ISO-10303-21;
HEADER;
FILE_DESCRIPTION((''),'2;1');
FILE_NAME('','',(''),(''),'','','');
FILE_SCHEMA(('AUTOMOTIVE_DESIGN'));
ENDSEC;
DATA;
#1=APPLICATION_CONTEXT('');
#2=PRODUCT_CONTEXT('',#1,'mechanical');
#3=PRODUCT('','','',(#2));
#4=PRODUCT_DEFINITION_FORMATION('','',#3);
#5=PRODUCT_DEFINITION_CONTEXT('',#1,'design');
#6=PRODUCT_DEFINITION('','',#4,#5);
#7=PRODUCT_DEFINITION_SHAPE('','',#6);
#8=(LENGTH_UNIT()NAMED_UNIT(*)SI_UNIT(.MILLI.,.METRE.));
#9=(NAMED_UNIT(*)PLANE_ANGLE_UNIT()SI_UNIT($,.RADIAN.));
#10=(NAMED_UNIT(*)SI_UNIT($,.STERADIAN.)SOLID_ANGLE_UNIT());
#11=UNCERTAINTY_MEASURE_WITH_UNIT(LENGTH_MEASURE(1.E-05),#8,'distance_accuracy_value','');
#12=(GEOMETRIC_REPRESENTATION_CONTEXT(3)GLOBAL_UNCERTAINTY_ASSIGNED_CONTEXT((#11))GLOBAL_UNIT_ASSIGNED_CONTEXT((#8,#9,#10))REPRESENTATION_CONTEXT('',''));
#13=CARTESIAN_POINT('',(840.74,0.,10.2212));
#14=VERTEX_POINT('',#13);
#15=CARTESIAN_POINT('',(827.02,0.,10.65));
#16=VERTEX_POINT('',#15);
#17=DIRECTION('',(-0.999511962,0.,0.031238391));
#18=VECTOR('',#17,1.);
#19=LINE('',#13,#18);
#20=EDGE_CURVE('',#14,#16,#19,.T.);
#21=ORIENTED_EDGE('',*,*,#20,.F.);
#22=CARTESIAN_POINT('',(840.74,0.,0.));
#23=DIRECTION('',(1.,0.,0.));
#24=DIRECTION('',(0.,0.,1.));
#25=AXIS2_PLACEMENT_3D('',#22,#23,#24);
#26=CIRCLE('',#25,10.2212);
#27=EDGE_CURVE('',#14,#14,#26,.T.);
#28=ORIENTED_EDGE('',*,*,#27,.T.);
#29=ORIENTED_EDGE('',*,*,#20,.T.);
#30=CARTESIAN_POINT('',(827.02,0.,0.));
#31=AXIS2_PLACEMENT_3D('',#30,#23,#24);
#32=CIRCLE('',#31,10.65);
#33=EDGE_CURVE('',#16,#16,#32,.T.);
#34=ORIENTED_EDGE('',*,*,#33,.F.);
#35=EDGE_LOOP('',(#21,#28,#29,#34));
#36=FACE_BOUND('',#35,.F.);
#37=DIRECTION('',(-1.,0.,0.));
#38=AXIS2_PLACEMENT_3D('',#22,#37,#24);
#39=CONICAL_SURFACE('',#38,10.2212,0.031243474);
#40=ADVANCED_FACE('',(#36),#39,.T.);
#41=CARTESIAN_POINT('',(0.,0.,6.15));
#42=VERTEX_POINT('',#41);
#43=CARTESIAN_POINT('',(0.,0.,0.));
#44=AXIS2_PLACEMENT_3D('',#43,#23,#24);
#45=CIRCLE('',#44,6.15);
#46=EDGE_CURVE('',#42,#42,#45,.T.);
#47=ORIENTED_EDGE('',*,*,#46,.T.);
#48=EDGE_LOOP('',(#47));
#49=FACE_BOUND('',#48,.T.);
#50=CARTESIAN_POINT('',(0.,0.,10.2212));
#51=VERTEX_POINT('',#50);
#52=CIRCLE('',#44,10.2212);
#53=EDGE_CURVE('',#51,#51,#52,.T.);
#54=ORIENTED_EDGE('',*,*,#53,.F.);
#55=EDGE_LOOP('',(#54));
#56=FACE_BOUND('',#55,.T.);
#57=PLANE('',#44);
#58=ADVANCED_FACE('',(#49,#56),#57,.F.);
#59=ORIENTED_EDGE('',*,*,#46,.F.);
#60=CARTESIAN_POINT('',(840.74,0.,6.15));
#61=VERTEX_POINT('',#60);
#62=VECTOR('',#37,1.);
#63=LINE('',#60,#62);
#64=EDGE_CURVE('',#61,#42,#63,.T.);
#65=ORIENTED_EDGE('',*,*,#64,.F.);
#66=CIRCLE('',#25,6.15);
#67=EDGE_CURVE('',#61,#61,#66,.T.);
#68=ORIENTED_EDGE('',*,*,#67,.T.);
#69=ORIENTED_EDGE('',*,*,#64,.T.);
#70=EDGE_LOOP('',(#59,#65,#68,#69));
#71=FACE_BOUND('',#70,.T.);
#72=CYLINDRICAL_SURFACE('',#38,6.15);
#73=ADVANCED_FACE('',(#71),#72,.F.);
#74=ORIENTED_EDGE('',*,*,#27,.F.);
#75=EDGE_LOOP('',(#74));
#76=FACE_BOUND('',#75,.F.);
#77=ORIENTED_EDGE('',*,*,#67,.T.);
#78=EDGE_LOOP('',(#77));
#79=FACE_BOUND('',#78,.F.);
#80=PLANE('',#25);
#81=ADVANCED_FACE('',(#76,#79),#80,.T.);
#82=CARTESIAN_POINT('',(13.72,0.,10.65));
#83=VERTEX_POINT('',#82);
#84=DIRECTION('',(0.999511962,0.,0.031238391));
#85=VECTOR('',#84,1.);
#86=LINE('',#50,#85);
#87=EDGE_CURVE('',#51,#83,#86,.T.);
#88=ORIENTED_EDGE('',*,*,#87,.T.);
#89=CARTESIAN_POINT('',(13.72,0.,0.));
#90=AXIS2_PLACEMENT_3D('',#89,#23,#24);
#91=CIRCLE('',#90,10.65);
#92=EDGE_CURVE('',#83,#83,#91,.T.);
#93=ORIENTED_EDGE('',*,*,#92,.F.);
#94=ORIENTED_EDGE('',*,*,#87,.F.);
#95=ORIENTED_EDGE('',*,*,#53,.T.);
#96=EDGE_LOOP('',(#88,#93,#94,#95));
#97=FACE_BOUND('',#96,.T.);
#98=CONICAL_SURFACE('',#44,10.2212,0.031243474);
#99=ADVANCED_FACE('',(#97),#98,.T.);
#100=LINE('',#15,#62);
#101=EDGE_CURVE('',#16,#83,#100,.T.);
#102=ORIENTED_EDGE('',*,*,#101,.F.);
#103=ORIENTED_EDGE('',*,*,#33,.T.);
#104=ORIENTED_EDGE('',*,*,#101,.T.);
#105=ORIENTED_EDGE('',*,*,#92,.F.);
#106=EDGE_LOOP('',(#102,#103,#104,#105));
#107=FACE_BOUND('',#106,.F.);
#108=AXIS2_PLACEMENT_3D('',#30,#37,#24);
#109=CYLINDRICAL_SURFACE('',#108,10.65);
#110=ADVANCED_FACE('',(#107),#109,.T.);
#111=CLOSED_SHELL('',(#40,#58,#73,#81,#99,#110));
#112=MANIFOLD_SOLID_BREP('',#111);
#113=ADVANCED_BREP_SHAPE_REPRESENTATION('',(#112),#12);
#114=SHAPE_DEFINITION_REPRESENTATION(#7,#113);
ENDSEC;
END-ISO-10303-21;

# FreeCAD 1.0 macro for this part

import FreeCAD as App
import Part
import Sketcher

V = App.Vector
Q = App.Units.Quantity

doc = App.newDocument("Part")
params = doc.addObject("Spreadsheet::Sheet", "Params")
for row, (alias, value) in enumerate([
    ("sketch1_width", "840.74 mm"),
    ("sketch1_width2", "813.3 mm"),
    ("revolution_angle", "360 deg"),
], start=1):
    params.set(f"A{row}", alias)
    params.set(f"B{row}", "=" + value)
    params.setAlias(f"B{row}", alias)

body = doc.addObject("PartDesign::Body", "Body")

# Sketch on XZ plane
sketch1 = body.newObject("Sketcher::SketchObject", "Sketch")
sketch1.AttachmentSupport = (doc.getObject("XZ_Plane"), [""])
sketch1.MapMode = "FlatFace"
sketch1.addGeometry([
    Part.LineSegment(V(840.7, 10.2, 0), V(840.7, 6.2, 0)),  # 0
    Part.LineSegment(V(840.7, 6.2, 0), V(0, 6.2, 0)),  # 1
    Part.LineSegment(V(0, 6.2, 0), V(0, 10.2, 0)),  # 2
    Part.LineSegment(V(0, 10.2, 0), V(13.7, 10.7, 0)),  # 3
    Part.LineSegment(V(13.7, 10.7, 0), V(827, 10.7, 0)),  # 4
    Part.LineSegment(V(827, 10.7, 0), V(840.7, 10.2, 0)),  # 5
], False)
sketch1.addConstraint([
    Sketcher.Constraint("Coincident", 0, 2, 1, 1),
    Sketcher.Constraint("Coincident", 1, 2, 2, 1),
    Sketcher.Constraint("Coincident", 2, 2, 3, 1),
    Sketcher.Constraint("Coincident", 3, 2, 4, 1),
    Sketcher.Constraint("Coincident", 4, 2, 5, 1),
    Sketcher.Constraint("Coincident", 5, 2, 0, 1),
    Sketcher.Constraint("Vertical", 0),
    Sketcher.Constraint("Horizontal", 1),
    Sketcher.Constraint("Vertical", 2),
    Sketcher.Constraint("Horizontal", 4),
    Sketcher.Constraint("PointOnObject", 1, 2, -2),
    Sketcher.Constraint("Horizontal", 2, 2, 5, 2),
    Sketcher.Constraint("Equal", 3, 5),
    Sketcher.Constraint("DistanceX", 1, 2, 1, 1, 840.74),
    Sketcher.Constraint("Angle", 3, Q("1.79 deg")),
    Sketcher.Constraint("DistanceY", 1, 2, 3, 2, 4.5),
    Sketcher.Constraint("DistanceX", 4, 1, 4, 2, 813.3),
    Sketcher.Constraint("DistanceY", -1, 1, 0, 2, 6.15),
])
sketch1.setExpression("Constraints[13]", "Params.sketch1_width")
sketch1.setExpression("Constraints[16]", "Params.sketch1_width2")
revolution = body.newObject("PartDesign::Revolution", "Revolution")
revolution.Profile = sketch1
revolution.ReferenceAxis = (sketch1, ["H_Axis"])
revolution.setExpression("Angle", "Params.revolution_angle")

doc.recompute()
